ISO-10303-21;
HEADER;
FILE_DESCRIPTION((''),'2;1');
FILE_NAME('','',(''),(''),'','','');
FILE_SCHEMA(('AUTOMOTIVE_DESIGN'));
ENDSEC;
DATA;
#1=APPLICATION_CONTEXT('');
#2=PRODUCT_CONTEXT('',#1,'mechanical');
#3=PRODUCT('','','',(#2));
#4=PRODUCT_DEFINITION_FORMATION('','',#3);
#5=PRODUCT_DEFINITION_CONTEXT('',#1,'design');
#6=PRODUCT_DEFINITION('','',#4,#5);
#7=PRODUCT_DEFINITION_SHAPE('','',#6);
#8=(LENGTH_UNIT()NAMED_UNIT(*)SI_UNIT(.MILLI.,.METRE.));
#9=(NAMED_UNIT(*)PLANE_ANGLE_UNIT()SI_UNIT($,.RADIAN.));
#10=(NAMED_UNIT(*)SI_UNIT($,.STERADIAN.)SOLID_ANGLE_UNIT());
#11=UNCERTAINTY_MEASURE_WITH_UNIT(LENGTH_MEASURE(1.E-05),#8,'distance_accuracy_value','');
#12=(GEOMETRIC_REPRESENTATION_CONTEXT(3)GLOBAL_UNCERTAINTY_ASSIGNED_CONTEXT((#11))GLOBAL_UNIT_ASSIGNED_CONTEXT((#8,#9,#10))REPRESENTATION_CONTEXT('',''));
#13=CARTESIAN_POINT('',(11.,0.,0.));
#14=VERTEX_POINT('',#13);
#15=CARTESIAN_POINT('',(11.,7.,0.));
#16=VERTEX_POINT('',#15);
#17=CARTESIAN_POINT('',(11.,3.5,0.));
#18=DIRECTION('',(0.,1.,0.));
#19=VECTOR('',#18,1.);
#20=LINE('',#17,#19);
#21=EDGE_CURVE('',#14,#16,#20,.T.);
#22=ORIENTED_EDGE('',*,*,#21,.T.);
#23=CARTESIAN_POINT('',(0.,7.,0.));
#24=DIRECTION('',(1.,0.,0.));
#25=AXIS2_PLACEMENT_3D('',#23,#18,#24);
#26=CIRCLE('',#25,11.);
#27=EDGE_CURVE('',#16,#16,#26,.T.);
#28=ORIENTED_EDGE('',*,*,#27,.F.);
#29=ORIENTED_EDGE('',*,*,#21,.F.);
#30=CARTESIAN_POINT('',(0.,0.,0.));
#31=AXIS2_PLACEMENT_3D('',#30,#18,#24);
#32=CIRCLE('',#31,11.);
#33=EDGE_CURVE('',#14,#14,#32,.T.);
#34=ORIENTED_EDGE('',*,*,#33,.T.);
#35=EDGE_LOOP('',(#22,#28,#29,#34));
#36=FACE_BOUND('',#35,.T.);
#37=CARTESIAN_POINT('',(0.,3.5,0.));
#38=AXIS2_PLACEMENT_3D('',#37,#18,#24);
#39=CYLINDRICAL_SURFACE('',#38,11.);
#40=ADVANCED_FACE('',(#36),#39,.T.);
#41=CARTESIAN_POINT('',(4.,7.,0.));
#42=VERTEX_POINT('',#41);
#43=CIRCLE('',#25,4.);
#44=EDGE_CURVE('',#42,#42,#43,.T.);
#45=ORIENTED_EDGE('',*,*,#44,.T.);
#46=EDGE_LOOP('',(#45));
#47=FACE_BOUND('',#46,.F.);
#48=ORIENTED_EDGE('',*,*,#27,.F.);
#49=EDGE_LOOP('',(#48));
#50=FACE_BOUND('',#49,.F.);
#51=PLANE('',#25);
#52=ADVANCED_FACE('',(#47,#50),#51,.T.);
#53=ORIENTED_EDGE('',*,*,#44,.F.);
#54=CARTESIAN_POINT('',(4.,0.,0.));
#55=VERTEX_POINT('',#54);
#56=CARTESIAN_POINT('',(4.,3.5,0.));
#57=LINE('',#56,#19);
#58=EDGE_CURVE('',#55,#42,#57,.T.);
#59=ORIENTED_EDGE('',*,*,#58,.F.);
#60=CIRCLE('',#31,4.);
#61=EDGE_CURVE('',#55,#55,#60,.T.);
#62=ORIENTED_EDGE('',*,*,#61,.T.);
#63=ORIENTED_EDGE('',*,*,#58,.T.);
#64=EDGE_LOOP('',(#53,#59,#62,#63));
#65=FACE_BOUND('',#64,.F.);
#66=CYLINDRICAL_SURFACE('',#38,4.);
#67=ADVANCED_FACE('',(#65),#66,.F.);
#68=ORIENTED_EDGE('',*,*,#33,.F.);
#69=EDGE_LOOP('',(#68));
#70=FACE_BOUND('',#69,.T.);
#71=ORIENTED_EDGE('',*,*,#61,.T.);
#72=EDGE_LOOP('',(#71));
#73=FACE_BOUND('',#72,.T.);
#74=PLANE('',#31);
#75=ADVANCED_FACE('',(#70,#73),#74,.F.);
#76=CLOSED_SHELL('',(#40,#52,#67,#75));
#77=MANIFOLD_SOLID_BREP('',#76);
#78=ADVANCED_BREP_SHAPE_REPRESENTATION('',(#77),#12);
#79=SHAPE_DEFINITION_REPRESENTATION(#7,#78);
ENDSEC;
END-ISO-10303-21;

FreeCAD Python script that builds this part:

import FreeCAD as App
import Part
import Sketcher

doc = App.newDocument("Part")
body = doc.addObject("PartDesign::Body", "Body")

sketch1 = body.newObject("Sketcher::SketchObject", "Sketch")
sketch1.AttachmentSupport = (doc.getObject("XY_Plane"), [""])
sketch1.MapMode = "FlatFace"
sketch1.addGeometry([
    Part.LineSegment(App.Vector(4, 7, 0), App.Vector(4, 0, 0)),
    Part.LineSegment(App.Vector(4, 0, 0), App.Vector(11, 0, 0)),
    Part.LineSegment(App.Vector(11, 0, 0), App.Vector(11, 7, 0)),
    Part.LineSegment(App.Vector(11, 7, 0), App.Vector(4, 7, 0)),
], False)
sketch1.addConstraint([
    Sketcher.Constraint("Coincident", 0, 2, 1, 1),
    Sketcher.Constraint("Coincident", 1, 2, 2, 1),
    Sketcher.Constraint("Coincident", 2, 2, 3, 1),
    Sketcher.Constraint("Coincident", 3, 2, 0, 1),
    Sketcher.Constraint("Vertical", 0),
    Sketcher.Constraint("Horizontal", 1),
    Sketcher.Constraint("Vertical", 2),
    Sketcher.Constraint("Horizontal", 3),
    Sketcher.Constraint("PointOnObject", 0, 2, -1),
    Sketcher.Constraint("Equal", 3, 0),
    Sketcher.Constraint("DistanceX", 1, 1, 1, 2, 7.0),
    Sketcher.Constraint("DistanceX", -1, 1, 0, 2, 4.0),
])
revolution = body.newObject("PartDesign::Revolution", "Revolution")
revolution.Profile = sketch1
revolution.ReferenceAxis = (sketch1, ["V_Axis"])
revolution.Angle = 360

doc.recompute()
